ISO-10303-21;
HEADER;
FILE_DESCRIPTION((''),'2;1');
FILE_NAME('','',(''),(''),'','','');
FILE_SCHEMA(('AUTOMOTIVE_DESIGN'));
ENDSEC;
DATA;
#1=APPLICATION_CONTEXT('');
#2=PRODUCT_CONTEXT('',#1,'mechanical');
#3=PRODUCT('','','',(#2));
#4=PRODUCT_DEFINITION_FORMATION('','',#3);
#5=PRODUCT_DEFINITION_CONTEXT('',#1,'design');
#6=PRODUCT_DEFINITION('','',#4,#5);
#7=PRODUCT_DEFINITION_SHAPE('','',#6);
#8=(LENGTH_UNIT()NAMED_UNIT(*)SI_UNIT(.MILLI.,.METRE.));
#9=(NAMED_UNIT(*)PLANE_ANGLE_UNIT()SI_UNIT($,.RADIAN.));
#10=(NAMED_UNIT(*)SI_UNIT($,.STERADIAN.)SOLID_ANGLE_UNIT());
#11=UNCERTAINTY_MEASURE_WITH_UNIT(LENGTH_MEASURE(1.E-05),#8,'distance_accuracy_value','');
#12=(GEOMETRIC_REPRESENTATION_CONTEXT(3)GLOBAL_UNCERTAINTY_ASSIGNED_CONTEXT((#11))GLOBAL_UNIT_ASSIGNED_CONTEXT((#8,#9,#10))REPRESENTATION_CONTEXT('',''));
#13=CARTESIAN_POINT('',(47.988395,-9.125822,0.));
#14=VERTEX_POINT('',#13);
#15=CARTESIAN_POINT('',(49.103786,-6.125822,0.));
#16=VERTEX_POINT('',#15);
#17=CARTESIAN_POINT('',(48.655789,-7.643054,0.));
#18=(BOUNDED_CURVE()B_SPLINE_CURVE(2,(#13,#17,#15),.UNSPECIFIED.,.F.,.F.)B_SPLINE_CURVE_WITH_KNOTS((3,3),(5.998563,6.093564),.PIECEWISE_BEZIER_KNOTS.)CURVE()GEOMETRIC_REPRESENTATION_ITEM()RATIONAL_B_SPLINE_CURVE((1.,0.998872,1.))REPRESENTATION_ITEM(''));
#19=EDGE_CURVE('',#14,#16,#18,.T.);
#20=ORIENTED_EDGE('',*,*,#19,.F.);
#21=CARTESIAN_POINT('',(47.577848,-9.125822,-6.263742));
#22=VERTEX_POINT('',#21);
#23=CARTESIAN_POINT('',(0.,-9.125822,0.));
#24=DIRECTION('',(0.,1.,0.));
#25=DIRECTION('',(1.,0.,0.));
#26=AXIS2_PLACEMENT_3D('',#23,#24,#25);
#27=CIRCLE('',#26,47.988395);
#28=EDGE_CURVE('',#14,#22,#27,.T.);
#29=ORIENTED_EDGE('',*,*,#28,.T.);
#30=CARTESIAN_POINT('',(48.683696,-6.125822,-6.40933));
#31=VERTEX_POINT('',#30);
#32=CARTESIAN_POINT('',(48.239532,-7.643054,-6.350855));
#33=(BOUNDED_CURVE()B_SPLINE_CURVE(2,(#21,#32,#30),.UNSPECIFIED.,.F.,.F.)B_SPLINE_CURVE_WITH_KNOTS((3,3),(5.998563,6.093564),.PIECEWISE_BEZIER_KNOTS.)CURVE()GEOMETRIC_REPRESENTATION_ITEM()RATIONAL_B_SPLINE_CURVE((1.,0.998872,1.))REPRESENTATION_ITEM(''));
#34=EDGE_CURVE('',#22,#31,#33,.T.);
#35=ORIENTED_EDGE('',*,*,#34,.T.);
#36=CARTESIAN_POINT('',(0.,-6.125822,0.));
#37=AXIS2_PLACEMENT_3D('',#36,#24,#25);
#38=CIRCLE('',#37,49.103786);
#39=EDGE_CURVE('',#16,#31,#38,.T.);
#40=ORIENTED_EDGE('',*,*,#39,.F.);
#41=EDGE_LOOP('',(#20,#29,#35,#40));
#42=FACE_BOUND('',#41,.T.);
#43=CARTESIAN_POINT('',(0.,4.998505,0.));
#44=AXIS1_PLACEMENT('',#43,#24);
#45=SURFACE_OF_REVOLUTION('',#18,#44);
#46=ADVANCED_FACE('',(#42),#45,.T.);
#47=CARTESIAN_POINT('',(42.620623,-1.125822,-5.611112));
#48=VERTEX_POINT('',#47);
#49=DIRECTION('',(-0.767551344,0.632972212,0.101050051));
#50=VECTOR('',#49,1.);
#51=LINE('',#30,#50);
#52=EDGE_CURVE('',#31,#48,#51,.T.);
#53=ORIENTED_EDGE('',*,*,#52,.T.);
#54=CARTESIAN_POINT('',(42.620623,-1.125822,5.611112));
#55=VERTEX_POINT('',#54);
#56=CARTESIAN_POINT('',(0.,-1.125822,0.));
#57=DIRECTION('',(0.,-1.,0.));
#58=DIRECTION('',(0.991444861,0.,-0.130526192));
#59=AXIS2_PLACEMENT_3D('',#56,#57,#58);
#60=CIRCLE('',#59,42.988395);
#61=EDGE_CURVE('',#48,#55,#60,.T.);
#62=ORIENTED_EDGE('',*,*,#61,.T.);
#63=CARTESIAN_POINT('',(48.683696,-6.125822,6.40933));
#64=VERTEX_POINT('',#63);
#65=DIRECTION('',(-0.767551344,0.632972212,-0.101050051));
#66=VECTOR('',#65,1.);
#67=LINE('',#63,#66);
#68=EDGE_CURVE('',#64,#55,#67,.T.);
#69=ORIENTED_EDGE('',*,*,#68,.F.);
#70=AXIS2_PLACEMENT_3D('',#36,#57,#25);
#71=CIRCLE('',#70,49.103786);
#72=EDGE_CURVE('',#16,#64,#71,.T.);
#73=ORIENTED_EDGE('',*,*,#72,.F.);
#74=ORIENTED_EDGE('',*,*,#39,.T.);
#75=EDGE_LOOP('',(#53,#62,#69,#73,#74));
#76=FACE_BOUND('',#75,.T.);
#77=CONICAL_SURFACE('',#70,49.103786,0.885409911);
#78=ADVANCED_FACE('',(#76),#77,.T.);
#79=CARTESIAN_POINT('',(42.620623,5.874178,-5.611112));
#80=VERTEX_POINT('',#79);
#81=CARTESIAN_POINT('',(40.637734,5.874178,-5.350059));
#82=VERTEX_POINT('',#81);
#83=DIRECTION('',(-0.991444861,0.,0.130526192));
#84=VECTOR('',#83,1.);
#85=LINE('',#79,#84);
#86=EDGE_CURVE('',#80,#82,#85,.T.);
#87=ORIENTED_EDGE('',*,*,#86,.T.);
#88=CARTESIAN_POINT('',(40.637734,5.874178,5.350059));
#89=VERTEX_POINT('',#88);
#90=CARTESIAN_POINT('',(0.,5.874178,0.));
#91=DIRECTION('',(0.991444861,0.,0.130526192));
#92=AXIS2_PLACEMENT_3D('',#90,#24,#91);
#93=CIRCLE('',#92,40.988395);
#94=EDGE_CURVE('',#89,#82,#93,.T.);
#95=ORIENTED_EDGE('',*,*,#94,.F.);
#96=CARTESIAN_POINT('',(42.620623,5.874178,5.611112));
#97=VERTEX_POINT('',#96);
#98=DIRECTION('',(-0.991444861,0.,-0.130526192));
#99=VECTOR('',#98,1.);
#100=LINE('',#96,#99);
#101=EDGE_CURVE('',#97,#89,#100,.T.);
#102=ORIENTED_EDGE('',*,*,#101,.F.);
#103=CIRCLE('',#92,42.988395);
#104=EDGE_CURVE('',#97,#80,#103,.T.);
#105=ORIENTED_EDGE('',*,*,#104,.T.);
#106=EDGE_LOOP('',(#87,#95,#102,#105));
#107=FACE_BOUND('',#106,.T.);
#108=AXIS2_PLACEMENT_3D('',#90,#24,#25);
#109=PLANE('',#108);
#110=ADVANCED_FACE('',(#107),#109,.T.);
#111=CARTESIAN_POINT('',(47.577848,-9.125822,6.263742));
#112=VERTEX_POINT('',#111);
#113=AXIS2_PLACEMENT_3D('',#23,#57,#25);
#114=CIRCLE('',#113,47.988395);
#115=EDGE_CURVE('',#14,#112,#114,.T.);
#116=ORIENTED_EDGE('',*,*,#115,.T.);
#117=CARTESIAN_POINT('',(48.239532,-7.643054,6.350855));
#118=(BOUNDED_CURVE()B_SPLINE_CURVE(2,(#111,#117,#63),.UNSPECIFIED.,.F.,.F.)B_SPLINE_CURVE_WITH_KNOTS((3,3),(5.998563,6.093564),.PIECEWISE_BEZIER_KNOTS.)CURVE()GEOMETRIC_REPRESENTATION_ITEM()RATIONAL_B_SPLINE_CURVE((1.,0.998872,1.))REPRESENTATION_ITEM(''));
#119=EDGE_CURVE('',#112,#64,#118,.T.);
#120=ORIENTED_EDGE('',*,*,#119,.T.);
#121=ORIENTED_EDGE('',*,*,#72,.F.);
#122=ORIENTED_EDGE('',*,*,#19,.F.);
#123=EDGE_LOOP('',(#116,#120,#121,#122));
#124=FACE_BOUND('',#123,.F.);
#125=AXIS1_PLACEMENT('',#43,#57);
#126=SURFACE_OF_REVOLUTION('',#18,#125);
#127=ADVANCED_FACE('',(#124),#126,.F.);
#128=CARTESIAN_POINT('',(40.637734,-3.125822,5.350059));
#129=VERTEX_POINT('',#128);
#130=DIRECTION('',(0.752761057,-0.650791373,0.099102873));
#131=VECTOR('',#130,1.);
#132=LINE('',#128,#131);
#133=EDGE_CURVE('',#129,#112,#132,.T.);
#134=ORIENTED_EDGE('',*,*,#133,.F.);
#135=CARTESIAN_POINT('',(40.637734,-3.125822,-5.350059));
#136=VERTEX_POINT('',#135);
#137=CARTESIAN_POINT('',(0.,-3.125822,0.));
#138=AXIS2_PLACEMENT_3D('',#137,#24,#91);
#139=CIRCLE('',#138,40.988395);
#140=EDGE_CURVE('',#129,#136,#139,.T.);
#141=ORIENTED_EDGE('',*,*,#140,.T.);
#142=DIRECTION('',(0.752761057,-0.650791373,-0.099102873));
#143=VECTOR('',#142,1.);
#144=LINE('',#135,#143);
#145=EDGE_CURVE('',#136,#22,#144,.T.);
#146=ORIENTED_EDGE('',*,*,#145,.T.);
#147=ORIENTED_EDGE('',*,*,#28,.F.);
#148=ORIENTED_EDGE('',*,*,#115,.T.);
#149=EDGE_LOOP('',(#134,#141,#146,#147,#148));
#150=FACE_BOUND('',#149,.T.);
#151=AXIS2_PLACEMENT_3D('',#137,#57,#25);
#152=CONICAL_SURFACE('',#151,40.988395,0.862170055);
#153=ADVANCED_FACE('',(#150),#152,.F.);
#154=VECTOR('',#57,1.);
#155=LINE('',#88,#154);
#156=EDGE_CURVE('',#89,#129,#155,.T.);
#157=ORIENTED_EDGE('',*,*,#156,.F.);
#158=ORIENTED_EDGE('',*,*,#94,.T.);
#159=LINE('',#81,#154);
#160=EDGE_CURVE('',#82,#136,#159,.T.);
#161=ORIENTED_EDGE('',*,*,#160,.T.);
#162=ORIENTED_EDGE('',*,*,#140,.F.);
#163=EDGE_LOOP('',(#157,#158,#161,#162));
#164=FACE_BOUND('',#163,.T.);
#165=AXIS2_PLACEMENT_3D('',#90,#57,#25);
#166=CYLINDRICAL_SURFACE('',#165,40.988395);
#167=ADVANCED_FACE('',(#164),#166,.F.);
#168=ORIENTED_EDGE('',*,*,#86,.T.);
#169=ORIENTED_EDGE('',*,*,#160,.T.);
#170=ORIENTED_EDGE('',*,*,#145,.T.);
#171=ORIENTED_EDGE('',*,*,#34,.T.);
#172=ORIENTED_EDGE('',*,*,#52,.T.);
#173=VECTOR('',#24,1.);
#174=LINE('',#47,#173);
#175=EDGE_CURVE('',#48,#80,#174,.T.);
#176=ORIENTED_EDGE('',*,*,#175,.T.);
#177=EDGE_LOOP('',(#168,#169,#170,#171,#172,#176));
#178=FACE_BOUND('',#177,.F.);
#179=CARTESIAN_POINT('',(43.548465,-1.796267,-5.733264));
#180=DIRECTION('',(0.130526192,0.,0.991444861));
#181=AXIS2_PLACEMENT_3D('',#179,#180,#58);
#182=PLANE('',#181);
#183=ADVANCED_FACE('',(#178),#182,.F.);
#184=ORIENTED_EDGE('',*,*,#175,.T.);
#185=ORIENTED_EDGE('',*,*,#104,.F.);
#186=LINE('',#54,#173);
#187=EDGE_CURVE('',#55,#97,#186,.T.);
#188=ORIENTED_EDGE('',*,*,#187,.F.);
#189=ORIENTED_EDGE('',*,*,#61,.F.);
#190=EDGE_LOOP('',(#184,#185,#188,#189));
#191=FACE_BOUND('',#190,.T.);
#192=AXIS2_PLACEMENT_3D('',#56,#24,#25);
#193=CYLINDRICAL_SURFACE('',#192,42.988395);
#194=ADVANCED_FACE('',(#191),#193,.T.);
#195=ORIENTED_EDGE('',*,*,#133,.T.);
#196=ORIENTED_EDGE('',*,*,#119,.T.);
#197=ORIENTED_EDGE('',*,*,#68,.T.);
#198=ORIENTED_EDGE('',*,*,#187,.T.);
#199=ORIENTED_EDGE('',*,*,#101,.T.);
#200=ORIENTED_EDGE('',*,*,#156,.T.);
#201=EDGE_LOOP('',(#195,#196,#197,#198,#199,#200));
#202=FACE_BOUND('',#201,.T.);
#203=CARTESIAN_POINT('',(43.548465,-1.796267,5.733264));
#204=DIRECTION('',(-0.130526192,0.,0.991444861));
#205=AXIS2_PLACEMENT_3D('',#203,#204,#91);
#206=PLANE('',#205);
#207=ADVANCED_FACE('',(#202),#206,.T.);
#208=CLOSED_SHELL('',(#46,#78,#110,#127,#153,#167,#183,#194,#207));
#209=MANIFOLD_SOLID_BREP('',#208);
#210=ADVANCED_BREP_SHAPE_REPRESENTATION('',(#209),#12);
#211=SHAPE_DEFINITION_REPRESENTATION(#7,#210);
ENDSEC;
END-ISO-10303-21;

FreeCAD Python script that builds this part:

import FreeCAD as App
import Part
import Sketcher
from FreeCAD import Vector

doc = App.newDocument("Part")
body = doc.addObject("PartDesign::Body", "Body")

sketch1 = doc.addObject("Sketcher::SketchObject", "Sketch")
body.addObject(sketch1)
sketch1.AttachmentSupport = (doc.XY_Plane, [""])
sketch1.MapMode = "FlatFace"
sketch1.addGeometry([
    Part.LineSegment(Vector(40.988395, -3.125822, 0), Vector(47.988395, -9.125822, 0)),
    Part.BSplineCurve([Vector(47.988395, -9.125822, 0), Vector(48.655789, -7.643054, 0), Vector(49.103786, -6.125822, 0)], [3, 3], [5.998563, 6.093564], False, 2, [1, 0.998872, 1], False),
    Part.LineSegment(Vector(49.103786, -6.125822, 0), Vector(42.988395, -1.125822, 0)),
    Part.LineSegment(Vector(42.988395, -1.125822, 0), Vector(42.988395, 5.874178, 0)),
    Part.LineSegment(Vector(42.988395, 5.874178, 0), Vector(40.988395, 5.874178, 0)),
    Part.LineSegment(Vector(40.988395, 5.874178, 0), Vector(40.988395, -3.125822, 0)),
], False)
sketch1.addConstraint([
    Sketcher.Constraint("Block", 1),
    Sketcher.Constraint("Coincident", 0, 2, 1, 1),
    Sketcher.Constraint("Coincident", 1, 2, 2, 1),
    Sketcher.Constraint("Coincident", 2, 2, 3, 1),
    Sketcher.Constraint("Coincident", 3, 2, 4, 1),
    Sketcher.Constraint("Coincident", 4, 2, 5, 1),
    Sketcher.Constraint("Coincident", 5, 2, 0, 1),
    Sketcher.Constraint("Vertical", 3),
    Sketcher.Constraint("Horizontal", 4),
    Sketcher.Constraint("Vertical", 5),
    Sketcher.Constraint("DistanceX", 4, 2, 4, 1, 2.0),
    Sketcher.Constraint("DistanceY", 3, 1, 3, 2, 7.0),
    Sketcher.Constraint("DistanceY", 5, 2, 5, 1, 9.0),
    Sketcher.Constraint("DistanceX", 2, 2, 0, 2, 5.0),
    Sketcher.Constraint("DistanceY", 0, 2, 2, 2, 8.0),
])
revolution = doc.addObject("PartDesign::Revolution", "Revolution")
body.addObject(revolution)
revolution.Profile = sketch1
revolution.ReferenceAxis = (sketch1, ["V_Axis"])
revolution.Angle = 7.5
revolution.Reversed = True

sketch2 = doc.addObject("Sketcher::SketchObject", "Sketch001")
body.addObject(sketch2)
sketch2.AttachmentSupport = (doc.XY_Plane, [""])
sketch2.MapMode = "FlatFace"
sketch2.addGeometry([
    Part.LineSegment(Vector(40.988395, -3.125822, 0), Vector(47.988395, -9.125822, 0)),
    Part.BSplineCurve([Vector(47.988395, -9.125822, 0), Vector(48.655789, -7.643054, 0), Vector(49.103786, -6.125822, 0)], [3, 3], [5.998563, 6.093564], False, 2, [1, 0.998872, 1], False),
    Part.LineSegment(Vector(49.103786, -6.125822, 0), Vector(42.988395, -1.125822, 0)),
    Part.LineSegment(Vector(42.988395, -1.125822, 0), Vector(42.988395, 5.874178, 0)),
    Part.LineSegment(Vector(42.988395, 5.874178, 0), Vector(40.988395, 5.874178, 0)),
    Part.LineSegment(Vector(40.988395, 5.874178, 0), Vector(40.988395, -3.125822, 0)),
], False)
sketch2.addConstraint([
    Sketcher.Constraint("Block", 1),
    Sketcher.Constraint("Coincident", 0, 2, 1, 1),
    Sketcher.Constraint("Coincident", 1, 2, 2, 1),
    Sketcher.Constraint("Coincident", 2, 2, 3, 1),
    Sketcher.Constraint("Coincident", 3, 2, 4, 1),
    Sketcher.Constraint("Coincident", 4, 2, 5, 1),
    Sketcher.Constraint("Coincident", 5, 2, 0, 1),
    Sketcher.Constraint("Vertical", 3),
    Sketcher.Constraint("Horizontal", 4),
    Sketcher.Constraint("Vertical", 5),
    Sketcher.Constraint("DistanceX", 4, 2, 4, 1, 2.0),
    Sketcher.Constraint("DistanceY", 3, 1, 3, 2, 7.0),
    Sketcher.Constraint("DistanceY", 5, 2, 5, 1, 9.0),
    Sketcher.Constraint("DistanceX", 2, 2, 0, 2, 5.0),
    Sketcher.Constraint("DistanceY", 0, 2, 2, 2, 8.0),
])
revolution2 = doc.addObject("PartDesign::Revolution", "Revolution001")
body.addObject(revolution2)
revolution2.Profile = sketch2
revolution2.ReferenceAxis = (sketch2, ["V_Axis"])
revolution2.Angle = 7.5

doc.recompute()
